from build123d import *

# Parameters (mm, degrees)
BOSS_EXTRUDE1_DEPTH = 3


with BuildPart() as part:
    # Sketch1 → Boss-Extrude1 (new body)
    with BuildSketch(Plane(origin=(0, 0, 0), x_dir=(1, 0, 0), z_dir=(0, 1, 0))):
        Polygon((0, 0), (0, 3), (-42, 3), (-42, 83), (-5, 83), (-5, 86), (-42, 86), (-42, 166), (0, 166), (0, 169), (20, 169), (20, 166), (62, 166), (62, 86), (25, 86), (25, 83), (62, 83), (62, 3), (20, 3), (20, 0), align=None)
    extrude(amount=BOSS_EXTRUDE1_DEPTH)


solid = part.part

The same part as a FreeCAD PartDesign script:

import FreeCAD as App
import Part
import Sketcher

V = App.Vector

doc = App.newDocument("Part")
body = doc.addObject("PartDesign::Body", "Body")

sketch1 = body.newObject("Sketcher::SketchObject", "Sketch")
sketch1.AttachmentSupport = (doc.getObject("XZ_Plane"), [""])
sketch1.MapMode = "FlatFace"
sketch1.addGeometry([
    Part.LineSegment(V(0, -3, 0), V(0, 0, 0)),
    Part.LineSegment(V(0, 0, 0), V(20, 0, 0)),
    Part.LineSegment(V(20, 0, 0), V(20, -3, 0)),
    Part.LineSegment(V(20, -3, 0), V(62, -3, 0)),
    Part.LineSegment(V(62, -3, 0), V(62, -83, 0)),
    Part.LineSegment(V(62, -83, 0), V(25, -83, 0)),
    Part.LineSegment(V(25, -83, 0), V(25, -86, 0)),
    Part.LineSegment(V(25, -86, 0), V(62, -86, 0)),
    Part.LineSegment(V(62, -86, 0), V(62, -166, 0)),
    Part.LineSegment(V(62, -166, 0), V(20, -166, 0)),
    Part.LineSegment(V(20, -166, 0), V(20, -169, 0)),
    Part.LineSegment(V(20, -169, 0), V(0, -169, 0)),
    Part.LineSegment(V(0, -169, 0), V(0, -166, 0)),
    Part.LineSegment(V(0, -166, 0), V(-42, -166, 0)),
    Part.LineSegment(V(-42, -166, 0), V(-42, -86, 0)),
    Part.LineSegment(V(-42, -86, 0), V(-5, -86, 0)),
    Part.LineSegment(V(-5, -86, 0), V(-5, -83, 0)),
    Part.LineSegment(V(-5, -83, 0), V(-42, -83, 0)),
    Part.LineSegment(V(-42, -83, 0), V(-42, -3, 0)),
    Part.LineSegment(V(-42, -3, 0), V(0, -3, 0)),
], False)
sketch1.addConstraint([
    Sketcher.Constraint("Coincident", 0, 2, 1, 1),
    Sketcher.Constraint("Coincident", 1, 2, 2, 1),
    Sketcher.Constraint("Coincident", 2, 2, 3, 1),
    Sketcher.Constraint("Coincident", 3, 2, 4, 1),
    Sketcher.Constraint("Coincident", 4, 2, 5, 1),
    Sketcher.Constraint("Coincident", 5, 2, 6, 1),
    Sketcher.Constraint("Coincident", 6, 2, 7, 1),
    Sketcher.Constraint("Coincident", 7, 2, 8, 1),
    Sketcher.Constraint("Coincident", 8, 2, 9, 1),
    Sketcher.Constraint("Coincident", 9, 2, 10, 1),
    Sketcher.Constraint("Coincident", 10, 2, 11, 1),
    Sketcher.Constraint("Coincident", 11, 2, 12, 1),
    Sketcher.Constraint("Coincident", 12, 2, 13, 1),
    Sketcher.Constraint("Coincident", 13, 2, 14, 1),
    Sketcher.Constraint("Coincident", 14, 2, 15, 1),
    Sketcher.Constraint("Coincident", 15, 2, 16, 1),
    Sketcher.Constraint("Coincident", 16, 2, 17, 1),
    Sketcher.Constraint("Coincident", 17, 2, 18, 1),
    Sketcher.Constraint("Coincident", 18, 2, 19, 1),
    Sketcher.Constraint("Coincident", 19, 2, 0, 1),
    Sketcher.Constraint("Vertical", 0),
    Sketcher.Constraint("Horizontal", 1),
    Sketcher.Constraint("Vertical", 2),
    Sketcher.Constraint("Horizontal", 3),
    Sketcher.Constraint("Vertical", 4),
    Sketcher.Constraint("Horizontal", 5),
    Sketcher.Constraint("Vertical", 6),
    Sketcher.Constraint("Horizontal", 7),
    Sketcher.Constraint("Vertical", 8),
    Sketcher.Constraint("Horizontal", 9),
    Sketcher.Constraint("Vertical", 10),
    Sketcher.Constraint("Horizontal", 11),
    Sketcher.Constraint("Vertical", 12),
    Sketcher.Constraint("Horizontal", 13),
    Sketcher.Constraint("Vertical", 14),
    Sketcher.Constraint("Horizontal", 15),
    Sketcher.Constraint("Vertical", 16),
    Sketcher.Constraint("Horizontal", 17),
    Sketcher.Constraint("Vertical", 18),
    Sketcher.Constraint("Horizontal", 19),
    Sketcher.Constraint("Coincident", 0, 2, -1, 1),
    Sketcher.Constraint("PointOnObject", 11, 2, -2),
    Sketcher.Constraint("Horizontal", 9, 2, 12, 2),
    Sketcher.Constraint("Horizontal", 7, 2, 14, 2),
    Sketcher.Constraint("Horizontal", 5, 2, 16, 2),
    Sketcher.Constraint("Horizontal", 3, 2, 18, 2),
    Sketcher.Constraint("Vertical", 4, 2, 7, 2),
    Sketcher.Constraint("Vertical", 2, 2, 9, 2),
    Sketcher.Constraint("Vertical", 14, 2, 17, 2),
    Sketcher.Constraint("Equal", 9, 13),
    Sketcher.Constraint("Equal", 7, 15),
    Sketcher.Constraint("Equal", 2, 6),
    Sketcher.Constraint("Equal", 4, 8),
    Sketcher.Constraint("Equal", 6, 10),
    Sketcher.Constraint("DistanceX", 1, 1, 1, 2, 20.0),
    Sketcher.Constraint("DistanceX", 3, 1, 3, 2, 42.0),
    Sketcher.Constraint("DistanceX", 5, 2, 5, 1, 37.0),
    Sketcher.Constraint("DistanceY", 0, 1, 0, 2, 3.0),
    Sketcher.Constraint("DistanceY", 4, 2, 4, 1, 80.0),
])
pad1 = body.newObject("PartDesign::Pad", "Pad")
pad1.Profile = sketch1
pad1.Length = 3
pad1.Reversed = True

doc.recompute()
